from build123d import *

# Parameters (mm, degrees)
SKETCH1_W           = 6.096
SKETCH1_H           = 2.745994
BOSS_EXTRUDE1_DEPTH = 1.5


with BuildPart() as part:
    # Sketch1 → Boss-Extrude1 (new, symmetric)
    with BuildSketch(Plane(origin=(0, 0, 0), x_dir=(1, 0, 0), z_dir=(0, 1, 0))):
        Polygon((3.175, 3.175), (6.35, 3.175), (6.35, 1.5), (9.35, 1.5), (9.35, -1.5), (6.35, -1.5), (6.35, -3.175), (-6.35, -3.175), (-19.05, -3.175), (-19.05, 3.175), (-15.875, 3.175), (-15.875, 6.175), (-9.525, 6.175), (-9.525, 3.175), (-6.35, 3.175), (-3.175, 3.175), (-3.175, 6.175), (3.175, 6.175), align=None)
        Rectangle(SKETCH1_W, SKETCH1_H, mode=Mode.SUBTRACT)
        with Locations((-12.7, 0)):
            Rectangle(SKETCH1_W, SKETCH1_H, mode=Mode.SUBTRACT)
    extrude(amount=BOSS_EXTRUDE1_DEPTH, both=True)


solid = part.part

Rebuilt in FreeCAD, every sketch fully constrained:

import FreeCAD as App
import Part
import Sketcher
Q = App.Units.Quantity


def add_polygon(sketch, points):
    """Adds a closed chain of lines whose ends are joined by coincident constraints."""
    first, n = sketch.GeometryCount, len(points)
    for a, b in zip(points, points[1:] + points[:1]):
        sketch.addGeometry(Part.LineSegment(App.Vector(*a, 0), App.Vector(*b, 0)), False)
    for i in range(n):
        sketch.addConstraint(Sketcher.Constraint("Coincident", first + i, 2, first + (i + 1) % n, 1))

doc = App.newDocument("Part")
body = doc.addObject("PartDesign::Body", "Body")

# Sketch on XZ plane
sketch1 = body.newObject("Sketcher::SketchObject", "Sketch")
sketch1.AttachmentSupport = (doc.getObject("XZ_Plane"), [""])
sketch1.MapMode = "FlatFace"
add_polygon(sketch1, [(6.3, -3.2), (3.2, -3.2), (3.2, -6.2), (-3.2, -6.2), (-3.2, -3.2), (-9.5, -3.2), (-9.5, -6.2), (-15.9, -6.2), (-15.9, -3.2), (-19.1, -3.2), (-19.1, 3.2), (6.3, 3.2), (6.3, 1.5), (9.3, 1.5), (9.3, -1.5), (6.3, -1.5)])  # lines 0-15
add_polygon(sketch1, [(-3, 1.4), (-3, -1.4), (3, -1.4), (3, 1.4)])  # lines 16-19
add_polygon(sketch1, [(-15.7, 1.4), (-15.7, -1.4), (-9.7, -1.4), (-9.7, 1.4)])  # lines 20-23
sketch1.addConstraint([
    Sketcher.Constraint("Horizontal", 0),
    Sketcher.Constraint("Vertical", 1),
    Sketcher.Constraint("Horizontal", 2),
    Sketcher.Constraint("Vertical", 3),
    Sketcher.Constraint("Horizontal", 4),
    Sketcher.Constraint("Vertical", 5),
    Sketcher.Constraint("Horizontal", 6),
    Sketcher.Constraint("Vertical", 7),
    Sketcher.Constraint("Horizontal", 8),
    Sketcher.Constraint("Vertical", 9),
    Sketcher.Constraint("Horizontal", 10),
    Sketcher.Constraint("Vertical", 11),
    Sketcher.Constraint("Horizontal", 12),
    Sketcher.Constraint("Vertical", 13),
    Sketcher.Constraint("Horizontal", 14),
    Sketcher.Constraint("Vertical", 15),
    Sketcher.Constraint("Vertical", 16),
    Sketcher.Constraint("Horizontal", 17),
    Sketcher.Constraint("Vertical", 18),
    Sketcher.Constraint("Horizontal", 19),
    Sketcher.Constraint("Vertical", 20),
    Sketcher.Constraint("Horizontal", 21),
    Sketcher.Constraint("Vertical", 22),
    Sketcher.Constraint("Horizontal", 23),
    Sketcher.Constraint("Symmetric", 16, 2, 18, 2, -1, 1),
    Sketcher.Constraint("Symmetric", 0, 2, 3, 2, -2),
    Sketcher.Constraint("Symmetric", 11, 2, 14, 2, -1),
    Sketcher.Constraint("Horizontal", 2, 2, 5, 2),
    Sketcher.Constraint("Horizontal", 4, 2, 7, 2),
    Sketcher.Constraint("Horizontal", 17, 2, 20, 2),
    Sketcher.Constraint("Horizontal", 19, 2, 22, 2),
    Sketcher.Constraint("Equal", 2, 4),
    Sketcher.Constraint("Equal", 4, 6),
    Sketcher.Constraint("Equal", 0, 8),
    Sketcher.Constraint("Equal", 19, 21),
    Sketcher.Constraint("Equal", 14, 1),
    Sketcher.Constraint("Equal", 6, 9),
    Sketcher.Constraint("Equal", 7, 13),
    Sketcher.Constraint("Equal", 11, 15),
    Sketcher.Constraint("DistanceX", 10, 1, 10, 2, Q("1 in")),
    Sketcher.Constraint("DistanceX", 2, 2, 2, 1, Q("0.25 in")),
    Sketcher.Constraint("DistanceX", 17, 1, 17, 2, Q("0.24 in")),
    Sketcher.Constraint("DistanceX", 20, 2, -1, 1, Q("0.62 in")),
    Sketcher.Constraint("DistanceY", 14, 2, 17, 2, Q("0.0050001 in")),
    Sketcher.Constraint("DistanceX", 12, 1, 12, 2, Q("3 mm")),
])
pad1 = body.newObject("PartDesign::Pad", "Pad")
pad1.Profile = sketch1
pad1.Length = 3
pad1.Midplane = True

doc.recompute()
